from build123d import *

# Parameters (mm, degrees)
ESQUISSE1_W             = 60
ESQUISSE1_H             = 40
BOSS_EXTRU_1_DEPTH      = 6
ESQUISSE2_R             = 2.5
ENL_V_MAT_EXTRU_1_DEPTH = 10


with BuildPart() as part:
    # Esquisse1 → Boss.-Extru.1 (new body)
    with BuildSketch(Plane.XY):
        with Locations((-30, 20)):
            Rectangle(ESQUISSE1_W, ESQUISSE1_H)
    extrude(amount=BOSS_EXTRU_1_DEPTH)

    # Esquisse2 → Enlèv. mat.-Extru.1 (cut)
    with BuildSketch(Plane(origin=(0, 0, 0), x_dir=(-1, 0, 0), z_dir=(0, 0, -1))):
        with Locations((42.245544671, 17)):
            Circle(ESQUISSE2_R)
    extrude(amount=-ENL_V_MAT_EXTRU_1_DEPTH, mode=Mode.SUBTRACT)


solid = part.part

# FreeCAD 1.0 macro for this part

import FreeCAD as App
import Part
import Sketcher
from FreeCAD import Vector


def add_polygon(sketch, points):
    """Adds a closed chain of lines whose ends are joined by coincident constraints."""
    first, n = sketch.GeometryCount, len(points)
    for a, b in zip(points, points[1:] + points[:1]):
        sketch.addGeometry(Part.LineSegment(App.Vector(*a, 0), App.Vector(*b, 0)), False)
    for i in range(n):
        sketch.addConstraint(Sketcher.Constraint("Coincident", first + i, 2, first + (i + 1) % n, 1))

doc = App.newDocument("Part")
params = doc.addObject("Spreadsheet::Sheet", "Params")
for row, (alias, value) in enumerate([
    ("sketch1_width", "60 mm"),
    ("sketch1_height", "40 mm"),
    ("pad1_length", "6 mm"),
    ("sketch2_diameter", "5 mm"),
    ("pocket1_length", "10 mm"),
], start=1):
    params.set(f"A{row}", alias)
    params.set(f"B{row}", "=" + value)
    params.setAlias(f"B{row}", alias)

body = doc.addObject("PartDesign::Body", "Body")

# Sketch on XY plane
sketch1 = body.newObject("Sketcher::SketchObject", "Sketch")
sketch1.AttachmentSupport = (doc.getObject("XY_Plane"), [""])
sketch1.MapMode = "FlatFace"
add_polygon(sketch1, [(-60, 40), (-60, 0), (0, 0), (0, 40)])  # lines 0-3
sketch1.addConstraint(Sketcher.Constraint("Vertical", 0))
sketch1.addConstraint(Sketcher.Constraint("Horizontal", 1))
sketch1.addConstraint(Sketcher.Constraint("Vertical", 2))
sketch1.addConstraint(Sketcher.Constraint("Horizontal", 3))
sketch1.addConstraint(Sketcher.Constraint("Coincident", 1, 2, -1, 1))
sketch1.addConstraint(Sketcher.Constraint("DistanceX", 1, 1, 1, 2, 60.0))
sketch1.addConstraint(Sketcher.Constraint("DistanceY", 0, 2, 0, 1, 40.0))
sketch1.setExpression("Constraints[9]", "Params.sketch1_width")
sketch1.setExpression("Constraints[10]", "Params.sketch1_height")
pad1 = body.newObject("PartDesign::Pad", "Pad")
pad1.Profile = sketch1
pad1.setExpression("Length", "Params.pad1_length")

# Sketch on XY plane
sketch2 = body.newObject("Sketcher::SketchObject", "Sketch001")
sketch2.AttachmentSupport = (doc.getObject("XY_Plane"), [""])
sketch2.MapMode = "FlatFace"
sketch2.addGeometry(Part.Circle(Vector(-42.2, 17, 0), Vector(0, 0, 1), 2.5), False)
sketch2.addConstraint(Sketcher.Constraint("Diameter", 0, 5.0))
sketch2.addConstraint(Sketcher.Constraint("DistanceY", -1, 1, 0, 3, 17.0))
sketch2.addConstraint(Sketcher.Constraint("DistanceX", 0, 3, -1, 1, 42.245545))
sketch2.setExpression("Constraints[0]", "Params.sketch2_diameter")
pocket1 = body.newObject("PartDesign::Pocket", "Pocket")
pocket1.Profile = sketch2
pocket1.setExpression("Length", "Params.pocket1_length")
pocket1.Reversed = True

doc.recompute()
